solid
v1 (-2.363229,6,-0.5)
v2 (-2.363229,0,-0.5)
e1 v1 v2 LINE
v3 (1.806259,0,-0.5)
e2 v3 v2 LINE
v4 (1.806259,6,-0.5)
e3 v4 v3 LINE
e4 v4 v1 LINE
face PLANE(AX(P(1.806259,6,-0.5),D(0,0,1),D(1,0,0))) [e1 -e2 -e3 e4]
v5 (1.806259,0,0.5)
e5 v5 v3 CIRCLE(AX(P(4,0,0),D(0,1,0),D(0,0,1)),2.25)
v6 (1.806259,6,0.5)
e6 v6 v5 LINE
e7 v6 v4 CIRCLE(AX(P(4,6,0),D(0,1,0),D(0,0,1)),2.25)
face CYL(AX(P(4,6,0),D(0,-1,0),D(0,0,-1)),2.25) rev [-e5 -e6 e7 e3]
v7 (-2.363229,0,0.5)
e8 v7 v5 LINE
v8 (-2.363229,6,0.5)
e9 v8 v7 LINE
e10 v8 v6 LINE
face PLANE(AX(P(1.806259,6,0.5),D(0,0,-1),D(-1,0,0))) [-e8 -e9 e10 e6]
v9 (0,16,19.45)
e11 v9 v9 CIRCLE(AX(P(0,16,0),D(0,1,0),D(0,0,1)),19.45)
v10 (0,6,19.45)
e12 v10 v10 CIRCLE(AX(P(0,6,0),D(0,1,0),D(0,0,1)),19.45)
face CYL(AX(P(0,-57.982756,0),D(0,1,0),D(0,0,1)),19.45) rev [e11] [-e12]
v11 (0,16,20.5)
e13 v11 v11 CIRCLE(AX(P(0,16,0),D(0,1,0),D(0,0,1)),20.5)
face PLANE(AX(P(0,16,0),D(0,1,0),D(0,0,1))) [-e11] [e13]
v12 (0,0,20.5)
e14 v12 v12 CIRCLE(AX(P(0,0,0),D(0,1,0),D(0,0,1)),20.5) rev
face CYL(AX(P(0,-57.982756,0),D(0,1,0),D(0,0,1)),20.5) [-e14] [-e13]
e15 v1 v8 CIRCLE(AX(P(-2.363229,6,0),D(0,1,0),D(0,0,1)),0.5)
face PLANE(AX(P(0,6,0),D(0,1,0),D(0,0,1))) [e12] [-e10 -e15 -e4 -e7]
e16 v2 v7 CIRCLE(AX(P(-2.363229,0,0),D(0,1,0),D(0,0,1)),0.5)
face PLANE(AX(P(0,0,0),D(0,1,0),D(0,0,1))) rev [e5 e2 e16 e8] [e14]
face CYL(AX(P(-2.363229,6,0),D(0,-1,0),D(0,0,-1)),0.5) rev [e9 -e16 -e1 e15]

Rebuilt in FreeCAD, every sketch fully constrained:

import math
import FreeCAD as App
import Part
import Sketcher

V = App.Vector

doc = App.newDocument("Part")
body = doc.addObject("PartDesign::Body", "Body")

# Sketch on XZ plane
sketch1 = body.newObject("Sketcher::SketchObject", "Sketch")
sketch1.AttachmentSupport = (doc.getObject("XZ_Plane"), [""])
sketch1.MapMode = "FlatFace"
sketch1.addGeometry(Part.Circle(V(0, 0, 0), V(0, 0, 1), 19.4), False)
sketch1.addGeometry(Part.ArcOfCircle(Part.Circle(V(4, 0, 0), V(0, 0, 1), 2.2), math.radians(-167), math.radians(167)), False)
sketch1.addGeometry(Part.LineSegment(V(1.8, 0.5, 0), V(-2.4, 0.5, 0)), False)
sketch1.addGeometry(Part.ArcOfCircle(Part.Circle(V(-2.4, 0, 0), V(0, 0, 1), 0.5), math.radians(90), math.radians(270)), False)
sketch1.addGeometry(Part.LineSegment(V(-2.4, -0.5, 0), V(1.8, -0.5, 0)), False)
sketch1.addConstraint(Sketcher.Constraint("Coincident", 1, 2, 2, 1))
sketch1.addConstraint(Sketcher.Constraint("Tangent", 2, 2, 3, 1))
sketch1.addConstraint(Sketcher.Constraint("Tangent", 3, 2, 4, 1))
sketch1.addConstraint(Sketcher.Constraint("Coincident", 4, 2, 1, 1))
sketch1.addConstraint(Sketcher.Constraint("Horizontal", 2))
sketch1.addConstraint(Sketcher.Constraint("Horizontal", 4))
sketch1.addConstraint(Sketcher.Constraint("Coincident", 0, 3, -1, 1))
sketch1.addConstraint(Sketcher.Constraint("Symmetric", 1, 2, 4, 2, -1))
sketch1.addConstraint(Sketcher.Constraint("Diameter", 0, 38.9))
sketch1.addConstraint(Sketcher.Constraint("Radius", 3, 0.5))
sketch1.addConstraint(Sketcher.Constraint("Radius", 1, 2.25))
sketch1.addConstraint(Sketcher.Constraint("DistanceX", -1, 1, 1, 3, 4.0))
sketch1.addConstraint(Sketcher.Constraint("DistanceX", 2, 2, 2, 1, 4.169488))
pad1 = body.newObject("PartDesign::Pad", "Pad")
pad1.Profile = sketch1
pad1.Length = 6
pad1.Reversed = True

# Sketch on XZ plane
sketch2 = body.newObject("Sketcher::SketchObject", "Sketch001")
sketch2.AttachmentSupport = (doc.getObject("XZ_Plane"), [""])
sketch2.MapMode = "FlatFace"
sketch2.AttachmentOffset = App.Placement(V(0, 0, -6), App.Rotation())
sketch2.addGeometry(Part.Circle(V(0, 0, 0), V(0, 0, 1), 20), False)
sketch2.addGeometry(Part.Circle(V(0, 0, 0), V(0, 0, 1), 19), False)
sketch2.addConstraint(Sketcher.Constraint("Coincident", 0, 3, -1, 1))
sketch2.addConstraint(Sketcher.Constraint("Coincident", 1, 3, -1, 1))
sketch2.addConstraint(Sketcher.Constraint("Diameter", 0, 41.0))
sketch2.addConstraint(Sketcher.Constraint("Diameter", 1, 38.9))
pad2 = body.newObject("PartDesign::Pad", "Pad001")
pad2.Profile = sketch2
pad2.Type = "TwoLengths"
pad2.Length = 10
pad2.Length2 = 6
pad2.Reversed = True

doc.recompute()
